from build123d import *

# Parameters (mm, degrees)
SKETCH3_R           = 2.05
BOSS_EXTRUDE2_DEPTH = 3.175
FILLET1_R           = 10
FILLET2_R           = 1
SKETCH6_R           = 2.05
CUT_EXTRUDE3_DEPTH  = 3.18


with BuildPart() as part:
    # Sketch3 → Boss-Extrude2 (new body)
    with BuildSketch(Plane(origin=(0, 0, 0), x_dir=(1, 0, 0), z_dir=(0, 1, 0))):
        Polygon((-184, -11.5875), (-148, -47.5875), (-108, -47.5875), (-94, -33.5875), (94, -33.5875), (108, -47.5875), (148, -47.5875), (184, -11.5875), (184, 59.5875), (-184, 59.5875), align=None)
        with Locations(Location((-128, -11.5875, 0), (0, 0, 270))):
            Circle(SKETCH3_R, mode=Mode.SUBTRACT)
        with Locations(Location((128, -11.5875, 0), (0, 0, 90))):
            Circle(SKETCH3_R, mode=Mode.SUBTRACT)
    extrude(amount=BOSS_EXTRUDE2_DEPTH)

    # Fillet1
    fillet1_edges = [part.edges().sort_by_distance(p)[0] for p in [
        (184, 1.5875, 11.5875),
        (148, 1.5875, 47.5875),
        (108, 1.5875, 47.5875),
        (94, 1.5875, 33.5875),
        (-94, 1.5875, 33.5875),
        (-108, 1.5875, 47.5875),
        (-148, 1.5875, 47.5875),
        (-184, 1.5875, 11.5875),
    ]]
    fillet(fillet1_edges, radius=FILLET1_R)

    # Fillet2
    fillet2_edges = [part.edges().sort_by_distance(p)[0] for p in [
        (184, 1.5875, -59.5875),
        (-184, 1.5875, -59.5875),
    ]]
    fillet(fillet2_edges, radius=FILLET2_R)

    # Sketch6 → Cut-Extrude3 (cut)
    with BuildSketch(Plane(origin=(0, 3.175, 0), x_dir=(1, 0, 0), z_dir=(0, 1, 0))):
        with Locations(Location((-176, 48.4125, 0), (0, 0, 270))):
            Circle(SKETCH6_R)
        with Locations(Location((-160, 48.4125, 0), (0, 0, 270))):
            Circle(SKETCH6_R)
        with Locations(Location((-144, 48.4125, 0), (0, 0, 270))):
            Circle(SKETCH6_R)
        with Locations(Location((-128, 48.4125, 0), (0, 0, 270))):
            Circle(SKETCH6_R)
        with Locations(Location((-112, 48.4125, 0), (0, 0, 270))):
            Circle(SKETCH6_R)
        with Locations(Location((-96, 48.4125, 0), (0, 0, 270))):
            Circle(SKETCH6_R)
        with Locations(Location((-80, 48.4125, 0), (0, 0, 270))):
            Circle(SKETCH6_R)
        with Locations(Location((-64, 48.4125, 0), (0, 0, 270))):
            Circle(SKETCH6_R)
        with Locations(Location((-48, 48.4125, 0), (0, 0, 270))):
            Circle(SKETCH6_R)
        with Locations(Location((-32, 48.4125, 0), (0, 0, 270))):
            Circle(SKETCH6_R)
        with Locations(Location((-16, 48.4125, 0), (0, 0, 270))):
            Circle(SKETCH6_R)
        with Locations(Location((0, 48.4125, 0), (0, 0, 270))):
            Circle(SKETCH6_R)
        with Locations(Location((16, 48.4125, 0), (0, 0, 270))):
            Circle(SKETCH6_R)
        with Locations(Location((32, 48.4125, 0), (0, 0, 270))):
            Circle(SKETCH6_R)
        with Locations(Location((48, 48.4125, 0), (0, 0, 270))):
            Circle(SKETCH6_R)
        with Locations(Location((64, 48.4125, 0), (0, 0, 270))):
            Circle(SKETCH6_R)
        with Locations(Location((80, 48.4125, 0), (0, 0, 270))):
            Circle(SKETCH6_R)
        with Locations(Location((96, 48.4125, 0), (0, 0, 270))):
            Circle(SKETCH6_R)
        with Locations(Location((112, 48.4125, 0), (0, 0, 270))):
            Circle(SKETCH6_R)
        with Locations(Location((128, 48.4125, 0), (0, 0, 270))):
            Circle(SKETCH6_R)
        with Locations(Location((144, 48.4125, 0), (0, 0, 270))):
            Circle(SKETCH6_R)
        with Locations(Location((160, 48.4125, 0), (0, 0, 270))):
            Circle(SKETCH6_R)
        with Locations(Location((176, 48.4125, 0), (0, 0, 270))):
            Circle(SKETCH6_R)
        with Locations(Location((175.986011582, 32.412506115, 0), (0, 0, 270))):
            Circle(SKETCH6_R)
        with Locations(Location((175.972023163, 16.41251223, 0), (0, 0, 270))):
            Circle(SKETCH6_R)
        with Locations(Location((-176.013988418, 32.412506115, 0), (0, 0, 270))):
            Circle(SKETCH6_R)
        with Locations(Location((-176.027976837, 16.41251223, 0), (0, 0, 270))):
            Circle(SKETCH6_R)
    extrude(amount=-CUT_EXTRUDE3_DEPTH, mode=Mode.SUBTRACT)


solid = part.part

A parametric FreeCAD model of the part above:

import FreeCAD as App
import Part
import Sketcher
from FreeCAD import Vector
Q = App.Units.Quantity


def edges_at(feature, points):
    """Names of the edges that pass closest to the given points."""
    edges = feature.Shape.Edges
    near = lambda p: min(range(len(edges)), key=lambda i: edges[i].distToShape(Part.Vertex(*p))[0])
    return sorted({f"Edge{near(p) + 1}" for p in points})


def add_polygon(sketch, points):
    """Adds a closed chain of lines whose ends are joined by coincident constraints."""
    first, n = sketch.GeometryCount, len(points)
    for a, b in zip(points, points[1:] + points[:1]):
        sketch.addGeometry(Part.LineSegment(App.Vector(*a, 0), App.Vector(*b, 0)), False)
    for i in range(n):
        sketch.addConstraint(Sketcher.Constraint("Coincident", first + i, 2, first + (i + 1) % n, 1))

doc = App.newDocument("Part")
body = doc.addObject("PartDesign::Body", "Body")

# Sketch on XZ plane
sketch1 = body.newObject("Sketcher::SketchObject", "Sketch")
sketch1.AttachmentSupport = (doc.getObject("XZ_Plane"), [""])
sketch1.MapMode = "FlatFace"
add_polygon(sketch1, [(-184, 11.6), (-148, 47.6), (-108, 47.6), (-94, 33.6), (94, 33.6), (108, 47.6), (148, 47.6), (184, 11.6), (184, -59.6), (-184, -59.6)])  # lines 0-9
sketch1.addGeometry(Part.Circle(Vector(-128, 11.6, 0), Vector(0, 0, 1), 2), False)  # 10
sketch1.addGeometry(Part.Circle(Vector(128, 11.6, 0), Vector(0, 0, 1), 2), False)  # 11
sketch1.addConstraint(Sketcher.Constraint("Horizontal", 1))
sketch1.addConstraint(Sketcher.Constraint("Horizontal", 3))
sketch1.addConstraint(Sketcher.Constraint("Horizontal", 5))
sketch1.addConstraint(Sketcher.Constraint("Vertical", 7))
sketch1.addConstraint(Sketcher.Constraint("Horizontal", 8))
sketch1.addConstraint(Sketcher.Constraint("Vertical", 9))
sketch1.addConstraint(Sketcher.Constraint("Equal", 10, 11))
sketch1.addConstraint(Sketcher.Constraint("Symmetric", 10, 3, 11, 3, -2))
sketch1.addConstraint(Sketcher.Constraint("Symmetric", 1, 2, 4, 2, -2))
sketch1.addConstraint(Sketcher.Constraint("Symmetric", 6, 2, 9, 2, -2))
sketch1.addConstraint(Sketcher.Constraint("Perpendicular", 0, 2))
sketch1.addConstraint(Sketcher.Constraint("Perpendicular", 2, 4))
sketch1.addConstraint(Sketcher.Constraint("Perpendicular", 4, 6))
sketch1.addConstraint(Sketcher.Constraint("Horizontal", 11, 3, 6, 2))
sketch1.addConstraint(Sketcher.Constraint("Equal", 1, 5))
sketch1.addConstraint(Sketcher.Constraint("Diameter", 10, Q("4.1 mm")))
sketch1.addConstraint(Sketcher.Constraint("DistanceX", 1, 1, 1, 2, Q("40 mm")))
sketch1.addConstraint(Sketcher.Constraint("DistanceX", 3, 1, 3, 2, Q("188 mm")))
sketch1.addConstraint(Sketcher.Constraint("DistanceX", 8, 2, 8, 1, Q("368 mm")))
sketch1.addConstraint(Sketcher.Constraint("DistanceX", 10, 3, -1, 1, Q("128 mm")))
sketch1.addConstraint(Sketcher.Constraint("DistanceX", 0, 2, -1, 1, Q("148 mm")))
sketch1.addConstraint(Sketcher.Constraint("DistanceY", 7, 2, 7, 1, Q("71.175 mm")))
sketch1.addConstraint(Sketcher.Constraint("DistanceY", -1, 1, 10, 3, Q("11.5875 mm")))
pad1 = body.newObject("PartDesign::Pad", "Pad")
pad1.Profile = sketch1
pad1.Length = 3.175
pad1.Reversed = True
doc.recompute()

fillet = body.newObject("PartDesign::Fillet", "Fillet")
fillet.Base = (pad1, edges_at(pad1, [
    (184, 1.587, 11.588),
    (148, 1.587, 47.587),
    (108, 1.587, 47.587),
    (94, 1.587, 33.587),
    (-94, 1.587, 33.587),
    (-108, 1.587, 47.587),
    (-148, 1.587, 47.587),
    (-184, 1.587, 11.588),
]))
fillet.Radius = 10
doc.recompute()

fillet2 = body.newObject("PartDesign::Fillet", "Fillet001")
fillet2.Base = (fillet, edges_at(fillet, [(184, 1.587, -59.587), (-184, 1.587, -59.587)]))
fillet2.Radius = 1

# Sketch on XZ plane
sketch2 = body.newObject("Sketcher::SketchObject", "Sketch001")
sketch2.AttachmentSupport = (doc.getObject("XZ_Plane"), [""])
sketch2.MapMode = "FlatFace"
sketch2.AttachmentOffset = App.Placement(Vector(0, 0, -3.175), App.Rotation())
sketch2.addGeometry(Part.Circle(Vector(-176, -48.4, 0), Vector(0, 0, 1), 2), False)
sketch2.addGeometry(Part.Circle(Vector(-160, -48.4, 0), Vector(0, 0, 1), 2), False)
sketch2.addGeometry(Part.Circle(Vector(-144, -48.4, 0), Vector(0, 0, 1), 2), False)
sketch2.addGeometry(Part.Circle(Vector(-128, -48.4, 0), Vector(0, 0, 1), 2), False)
sketch2.addGeometry(Part.Circle(Vector(-112, -48.4, 0), Vector(0, 0, 1), 2), False)
sketch2.addGeometry(Part.Circle(Vector(-96, -48.4, 0), Vector(0, 0, 1), 2), False)
sketch2.addGeometry(Part.Circle(Vector(-80, -48.4, 0), Vector(0, 0, 1), 2), False)
sketch2.addGeometry(Part.Circle(Vector(-64, -48.4, 0), Vector(0, 0, 1), 2), False)
sketch2.addGeometry(Part.Circle(Vector(-48, -48.4, 0), Vector(0, 0, 1), 2), False)
sketch2.addGeometry(Part.Circle(Vector(-32, -48.4, 0), Vector(0, 0, 1), 2), False)
sketch2.addGeometry(Part.Circle(Vector(-16, -48.4, 0), Vector(0, 0, 1), 2), False)
sketch2.addGeometry(Part.Circle(Vector(0, -48.4, 0), Vector(0, 0, 1), 2), False)
sketch2.addGeometry(Part.Circle(Vector(16, -48.4, 0), Vector(0, 0, 1), 2), False)
sketch2.addGeometry(Part.Circle(Vector(32, -48.4, 0), Vector(0, 0, 1), 2), False)
sketch2.addGeometry(Part.Circle(Vector(48, -48.4, 0), Vector(0, 0, 1), 2), False)
sketch2.addGeometry(Part.Circle(Vector(64, -48.4, 0), Vector(0, 0, 1), 2), False)
sketch2.addGeometry(Part.Circle(Vector(80, -48.4, 0), Vector(0, 0, 1), 2), False)
sketch2.addGeometry(Part.Circle(Vector(96, -48.4, 0), Vector(0, 0, 1), 2), False)
sketch2.addGeometry(Part.Circle(Vector(112, -48.4, 0), Vector(0, 0, 1), 2), False)
sketch2.addGeometry(Part.Circle(Vector(128, -48.4, 0), Vector(0, 0, 1), 2), False)
sketch2.addGeometry(Part.Circle(Vector(144, -48.4, 0), Vector(0, 0, 1), 2), False)
sketch2.addGeometry(Part.Circle(Vector(160, -48.4, 0), Vector(0, 0, 1), 2), False)
sketch2.addGeometry(Part.Circle(Vector(176, -48.4, 0), Vector(0, 0, 1), 2), False)
sketch2.addGeometry(Part.Circle(Vector(176, -32.4, 0), Vector(0, 0, 1), 2), False)
sketch2.addGeometry(Part.Circle(Vector(176, -16.4, 0), Vector(0, 0, 1), 2), False)
sketch2.addGeometry(Part.Circle(Vector(-176, -32.4, 0), Vector(0, 0, 1), 2), False)
sketch2.addGeometry(Part.Circle(Vector(-176, -16.4, 0), Vector(0, 0, 1), 2), False)
sketch2.addConstraint(Sketcher.Constraint("Equal", 0, 1))
sketch2.addConstraint(Sketcher.Constraint("Equal", 1, 2))
sketch2.addConstraint(Sketcher.Constraint("Equal", 2, 3))
sketch2.addConstraint(Sketcher.Constraint("Equal", 3, 4))
sketch2.addConstraint(Sketcher.Constraint("Equal", 4, 5))
sketch2.addConstraint(Sketcher.Constraint("Equal", 5, 6))
sketch2.addConstraint(Sketcher.Constraint("Equal", 6, 7))
sketch2.addConstraint(Sketcher.Constraint("Equal", 7, 8))
sketch2.addConstraint(Sketcher.Constraint("Equal", 8, 9))
sketch2.addConstraint(Sketcher.Constraint("Equal", 9, 10))
sketch2.addConstraint(Sketcher.Constraint("Equal", 10, 11))
sketch2.addConstraint(Sketcher.Constraint("Equal", 11, 12))
sketch2.addConstraint(Sketcher.Constraint("Equal", 12, 13))
sketch2.addConstraint(Sketcher.Constraint("Equal", 13, 14))
sketch2.addConstraint(Sketcher.Constraint("Equal", 14, 15))
sketch2.addConstraint(Sketcher.Constraint("Equal", 15, 16))
sketch2.addConstraint(Sketcher.Constraint("Equal", 16, 17))
sketch2.addConstraint(Sketcher.Constraint("Equal", 17, 18))
sketch2.addConstraint(Sketcher.Constraint("Equal", 18, 19))
sketch2.addConstraint(Sketcher.Constraint("Equal", 19, 20))
sketch2.addConstraint(Sketcher.Constraint("Equal", 20, 21))
sketch2.addConstraint(Sketcher.Constraint("Equal", 21, 22))
sketch2.addConstraint(Sketcher.Constraint("Equal", 22, 23))
sketch2.addConstraint(Sketcher.Constraint("Equal", 23, 24))
sketch2.addConstraint(Sketcher.Constraint("Equal", 24, 25))
sketch2.addConstraint(Sketcher.Constraint("Equal", 25, 26))
sketch2.addConstraint(Sketcher.Constraint("Symmetric", 10, 3, 12, 3, -2))
sketch2.addConstraint(Sketcher.Constraint("Symmetric", 9, 3, 13, 3, -2))
sketch2.addConstraint(Sketcher.Constraint("Symmetric", 8, 3, 14, 3, -2))
sketch2.addConstraint(Sketcher.Constraint("Symmetric", 7, 3, 15, 3, -2))
sketch2.addConstraint(Sketcher.Constraint("Symmetric", 6, 3, 16, 3, -2))
sketch2.addConstraint(Sketcher.Constraint("Symmetric", 5, 3, 17, 3, -2))
sketch2.addConstraint(Sketcher.Constraint("Symmetric", 4, 3, 18, 3, -2))
sketch2.addConstraint(Sketcher.Constraint("Symmetric", 3, 3, 19, 3, -2))
sketch2.addConstraint(Sketcher.Constraint("Symmetric", 2, 3, 20, 3, -2))
sketch2.addConstraint(Sketcher.Constraint("Symmetric", 1, 3, 21, 3, -2))
sketch2.addConstraint(Sketcher.Constraint("Symmetric", 0, 3, 22, 3, -2))
sketch2.addConstraint(Sketcher.Constraint("PointOnObject", 11, 3, -2))
sketch2.addConstraint(Sketcher.Constraint("Horizontal", 0, 3, 1, 3))
sketch2.addConstraint(Sketcher.Constraint("Horizontal", 1, 3, 2, 3))
sketch2.addConstraint(Sketcher.Constraint("Horizontal", 2, 3, 3, 3))
sketch2.addConstraint(Sketcher.Constraint("Horizontal", 3, 3, 4, 3))
sketch2.addConstraint(Sketcher.Constraint("Horizontal", 4, 3, 5, 3))
sketch2.addConstraint(Sketcher.Constraint("Horizontal", 5, 3, 6, 3))
sketch2.addConstraint(Sketcher.Constraint("Horizontal", 6, 3, 7, 3))
sketch2.addConstraint(Sketcher.Constraint("Horizontal", 7, 3, 8, 3))
sketch2.addConstraint(Sketcher.Constraint("Horizontal", 8, 3, 9, 3))
sketch2.addConstraint(Sketcher.Constraint("Horizontal", 9, 3, 10, 3))
sketch2.addConstraint(Sketcher.Constraint("Horizontal", 10, 3, 11, 3))
sketch2.addConstraint(Sketcher.Constraint("Horizontal", 23, 3, 25, 3))
sketch2.addConstraint(Sketcher.Constraint("Horizontal", 24, 3, 26, 3))
sketch2.addConstraint(Sketcher.Constraint("Diameter", 0, Q("4.1 mm")))
sketch2.addConstraint(Sketcher.Constraint("DistanceX", 0, 3, -1, 1, Q("176 mm")))
sketch2.addConstraint(Sketcher.Constraint("DistanceX", 1, 3, -1, 1, Q("160 mm")))
sketch2.addConstraint(Sketcher.Constraint("DistanceX", 2, 3, -1, 1, Q("144 mm")))
sketch2.addConstraint(Sketcher.Constraint("DistanceX", 3, 3, -1, 1, Q("128 mm")))
sketch2.addConstraint(Sketcher.Constraint("DistanceX", 4, 3, -1, 1, Q("112 mm")))
sketch2.addConstraint(Sketcher.Constraint("DistanceX", 5, 3, -1, 1, Q("96 mm")))
sketch2.addConstraint(Sketcher.Constraint("DistanceX", 6, 3, -1, 1, Q("80 mm")))
sketch2.addConstraint(Sketcher.Constraint("DistanceX", 7, 3, -1, 1, Q("64 mm")))
sketch2.addConstraint(Sketcher.Constraint("DistanceX", 8, 3, -1, 1, Q("48 mm")))
sketch2.addConstraint(Sketcher.Constraint("DistanceX", 9, 3, -1, 1, Q("32 mm")))
sketch2.addConstraint(Sketcher.Constraint("DistanceX", 10, 3, -1, 1, Q("16 mm")))
sketch2.addConstraint(Sketcher.Constraint("DistanceY", 0, 3, -1, 1, Q("48.4125 mm")))
sketch2.addConstraint(Sketcher.Constraint("DistanceX", -1, 1, 23, 3, Q("175.986012 mm")))
sketch2.addConstraint(Sketcher.Constraint("DistanceX", 25, 3, -1, 1, Q("176.013988 mm")))
sketch2.addConstraint(Sketcher.Constraint("DistanceX", 24, 3, 23, 3, Q("0.013988 mm")))
sketch2.addConstraint(Sketcher.Constraint("DistanceX", 26, 3, 25, 3, Q("0.013988 mm")))
sketch2.addConstraint(Sketcher.Constraint("DistanceY", 23, 3, -1, 1, Q("32.412506 mm")))
sketch2.addConstraint(Sketcher.Constraint("DistanceY", 24, 3, -1, 1, Q("16.412512 mm")))
pocket1 = body.newObject("PartDesign::Pocket", "Pocket")
pocket1.Profile = sketch2
pocket1.Length = 3.18
pocket1.Reversed = True

doc.recompute()
